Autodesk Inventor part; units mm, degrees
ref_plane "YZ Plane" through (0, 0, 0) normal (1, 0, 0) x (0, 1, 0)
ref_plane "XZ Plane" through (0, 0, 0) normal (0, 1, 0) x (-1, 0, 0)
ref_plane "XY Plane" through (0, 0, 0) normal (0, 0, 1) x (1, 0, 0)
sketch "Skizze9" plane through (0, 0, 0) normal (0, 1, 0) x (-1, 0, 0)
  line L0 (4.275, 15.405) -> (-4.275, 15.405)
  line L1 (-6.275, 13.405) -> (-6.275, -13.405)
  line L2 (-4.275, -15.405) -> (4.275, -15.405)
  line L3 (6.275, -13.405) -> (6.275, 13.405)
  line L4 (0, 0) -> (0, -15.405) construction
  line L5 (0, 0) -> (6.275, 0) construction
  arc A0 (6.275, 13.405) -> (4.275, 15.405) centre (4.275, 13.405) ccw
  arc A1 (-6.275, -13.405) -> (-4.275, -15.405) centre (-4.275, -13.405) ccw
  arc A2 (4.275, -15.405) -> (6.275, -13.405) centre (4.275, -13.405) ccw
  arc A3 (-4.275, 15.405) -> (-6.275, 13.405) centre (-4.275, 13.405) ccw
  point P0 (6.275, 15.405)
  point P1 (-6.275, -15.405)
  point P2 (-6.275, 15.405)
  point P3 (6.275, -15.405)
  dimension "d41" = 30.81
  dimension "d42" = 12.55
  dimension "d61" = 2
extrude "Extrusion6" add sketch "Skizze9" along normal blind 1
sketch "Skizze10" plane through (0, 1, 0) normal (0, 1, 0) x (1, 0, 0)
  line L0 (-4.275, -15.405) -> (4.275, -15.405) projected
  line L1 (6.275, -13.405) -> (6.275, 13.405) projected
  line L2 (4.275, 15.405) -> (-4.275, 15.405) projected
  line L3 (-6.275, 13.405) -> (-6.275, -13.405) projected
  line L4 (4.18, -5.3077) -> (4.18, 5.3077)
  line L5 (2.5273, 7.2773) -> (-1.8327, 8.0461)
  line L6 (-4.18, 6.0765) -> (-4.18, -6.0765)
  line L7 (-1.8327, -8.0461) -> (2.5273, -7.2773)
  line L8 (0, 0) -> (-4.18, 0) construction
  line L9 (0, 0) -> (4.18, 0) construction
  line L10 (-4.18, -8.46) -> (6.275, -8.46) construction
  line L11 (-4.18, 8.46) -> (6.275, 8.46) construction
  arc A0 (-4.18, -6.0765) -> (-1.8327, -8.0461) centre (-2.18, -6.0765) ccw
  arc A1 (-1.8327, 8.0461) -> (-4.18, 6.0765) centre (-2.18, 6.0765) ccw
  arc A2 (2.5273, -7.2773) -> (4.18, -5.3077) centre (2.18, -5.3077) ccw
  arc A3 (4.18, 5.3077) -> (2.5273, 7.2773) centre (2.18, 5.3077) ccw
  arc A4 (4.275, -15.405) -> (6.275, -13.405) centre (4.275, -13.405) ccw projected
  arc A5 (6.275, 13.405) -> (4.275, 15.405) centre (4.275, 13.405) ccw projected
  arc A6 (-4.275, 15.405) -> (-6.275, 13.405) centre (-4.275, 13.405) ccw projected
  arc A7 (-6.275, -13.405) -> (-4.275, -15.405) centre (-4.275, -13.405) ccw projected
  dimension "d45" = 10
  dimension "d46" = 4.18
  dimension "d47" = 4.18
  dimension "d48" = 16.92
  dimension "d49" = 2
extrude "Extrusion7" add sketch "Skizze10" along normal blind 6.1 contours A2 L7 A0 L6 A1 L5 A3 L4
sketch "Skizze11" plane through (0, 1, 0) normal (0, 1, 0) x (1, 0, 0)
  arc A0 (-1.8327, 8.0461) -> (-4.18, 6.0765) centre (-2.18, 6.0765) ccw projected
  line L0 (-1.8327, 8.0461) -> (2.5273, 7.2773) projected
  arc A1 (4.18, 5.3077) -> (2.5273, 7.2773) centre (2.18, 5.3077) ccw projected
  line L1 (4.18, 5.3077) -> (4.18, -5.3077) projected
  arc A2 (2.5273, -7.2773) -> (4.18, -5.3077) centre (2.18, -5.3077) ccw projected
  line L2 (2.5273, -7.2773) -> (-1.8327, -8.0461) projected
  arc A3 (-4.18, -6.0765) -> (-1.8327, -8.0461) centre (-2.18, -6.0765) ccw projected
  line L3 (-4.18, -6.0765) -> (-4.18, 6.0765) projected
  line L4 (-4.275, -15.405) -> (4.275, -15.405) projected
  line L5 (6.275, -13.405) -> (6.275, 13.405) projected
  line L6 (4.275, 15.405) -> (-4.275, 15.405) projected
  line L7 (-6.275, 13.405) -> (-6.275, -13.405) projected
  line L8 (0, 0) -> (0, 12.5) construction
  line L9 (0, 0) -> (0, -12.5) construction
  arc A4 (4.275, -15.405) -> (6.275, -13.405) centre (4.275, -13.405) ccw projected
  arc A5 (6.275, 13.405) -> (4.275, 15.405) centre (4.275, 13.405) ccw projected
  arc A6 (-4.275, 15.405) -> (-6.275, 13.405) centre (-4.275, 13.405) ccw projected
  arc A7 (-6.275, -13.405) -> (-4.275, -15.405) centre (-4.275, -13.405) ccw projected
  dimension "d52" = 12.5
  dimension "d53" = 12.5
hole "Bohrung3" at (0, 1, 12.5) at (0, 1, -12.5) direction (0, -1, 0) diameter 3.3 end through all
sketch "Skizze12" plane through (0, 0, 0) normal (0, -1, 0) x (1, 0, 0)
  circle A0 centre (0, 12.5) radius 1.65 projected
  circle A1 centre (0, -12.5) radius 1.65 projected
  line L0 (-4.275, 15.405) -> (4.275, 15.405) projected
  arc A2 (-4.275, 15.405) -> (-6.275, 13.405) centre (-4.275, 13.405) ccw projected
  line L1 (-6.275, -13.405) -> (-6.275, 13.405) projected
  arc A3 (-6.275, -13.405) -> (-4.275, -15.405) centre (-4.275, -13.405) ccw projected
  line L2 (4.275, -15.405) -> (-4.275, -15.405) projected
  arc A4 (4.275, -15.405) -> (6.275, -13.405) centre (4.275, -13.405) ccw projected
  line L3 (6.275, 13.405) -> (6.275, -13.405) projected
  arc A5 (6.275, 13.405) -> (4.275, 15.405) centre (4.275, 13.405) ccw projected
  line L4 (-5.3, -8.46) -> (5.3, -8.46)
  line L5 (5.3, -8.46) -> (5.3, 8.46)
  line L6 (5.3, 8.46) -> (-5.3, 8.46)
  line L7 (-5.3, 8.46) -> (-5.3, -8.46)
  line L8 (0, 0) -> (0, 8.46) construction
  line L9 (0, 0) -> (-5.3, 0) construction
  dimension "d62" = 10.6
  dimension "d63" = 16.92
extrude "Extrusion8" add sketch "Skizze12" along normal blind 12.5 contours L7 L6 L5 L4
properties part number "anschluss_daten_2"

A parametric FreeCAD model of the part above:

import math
import FreeCAD as App
import Part
import Sketcher
Q = App.Units.Quantity

doc = App.newDocument("Part")
body = doc.addObject("PartDesign::Body", "Body")

# Sketch on XZ plane
sketch1 = body.newObject("Sketcher::SketchObject", "Sketch")
sketch1.AttachmentSupport = (doc.getObject("XZ_Plane"), [""])
sketch1.MapMode = "FlatFace"
sketch1.addGeometry([
    Part.ArcOfCircle(Part.Circle(App.Vector(-4.3, 13.4, 0), App.Vector(0, 0, 1), 2), math.radians(90), math.radians(180)),  # 0
    Part.LineSegment(App.Vector(-4.3, 15.4, 0), App.Vector(4.3, 15.4, 0)),  # 1
    Part.ArcOfCircle(Part.Circle(App.Vector(4.3, 13.4, 0), App.Vector(0, 0, 1), 2), math.radians(0), math.radians(90)),  # 2
    Part.LineSegment(App.Vector(6.3, 13.4, 0), App.Vector(6.3, -13.4, 0)),  # 3
    Part.ArcOfCircle(Part.Circle(App.Vector(4.3, -13.4, 0), App.Vector(0, 0, 1), 2), math.radians(-90), math.radians(0)),  # 4
    Part.LineSegment(App.Vector(4.3, -15.4, 0), App.Vector(-4.3, -15.4, 0)),  # 5
    Part.ArcOfCircle(Part.Circle(App.Vector(-4.3, -13.4, 0), App.Vector(0, 0, 1), 2), math.radians(180), math.radians(270)),  # 6
    Part.LineSegment(App.Vector(-6.3, -13.4, 0), App.Vector(-6.3, 13.4, 0)),  # 7
], False)
sketch1.addConstraint([
    Sketcher.Constraint("Tangent", 0, 1, 1, 1),
    Sketcher.Constraint("Tangent", 1, 2, 2, 2),
    Sketcher.Constraint("Tangent", 2, 1, 3, 1),
    Sketcher.Constraint("Tangent", 3, 2, 4, 2),
    Sketcher.Constraint("Tangent", 4, 1, 5, 1),
    Sketcher.Constraint("Tangent", 5, 2, 6, 2),
    Sketcher.Constraint("Tangent", 6, 1, 7, 1),
    Sketcher.Constraint("Tangent", 7, 2, 0, 2),
    Sketcher.Constraint("Horizontal", 1),
    Sketcher.Constraint("Vertical", 3),
    Sketcher.Constraint("Horizontal", 5),
    Sketcher.Constraint("Vertical", 7),
    Sketcher.Constraint("Equal", 0, 2),
    Sketcher.Constraint("Equal", 2, 4),
    Sketcher.Constraint("Equal", 4, 6),
    Sketcher.Constraint("Symmetric", 0, 3, 4, 3, -1, 1),
    Sketcher.Constraint("Radius", 0, Q("2 mm")),
    Sketcher.Constraint("DistanceX", 6, 1, 3, 2, Q("12.55 mm")),
    Sketcher.Constraint("DistanceY", 3, 2, 3, 1, Q("26.81 mm")),
])
pad1 = body.newObject("PartDesign::Pad", "Pad")
pad1.Profile = sketch1
pad1.Length = 1
pad1.Reversed = True

# Sketch on XZ plane
sketch2 = body.newObject("Sketcher::SketchObject", "Sketch001")
sketch2.AttachmentSupport = (doc.getObject("XZ_Plane"), [""])
sketch2.MapMode = "FlatFace"
sketch2.AttachmentOffset = App.Placement(App.Vector(0, 0, -1), App.Rotation())
sketch2.addGeometry([
    Part.ArcOfCircle(Part.Circle(App.Vector(2.2, 5.3, 0), App.Vector(0, 0, 1), 2), math.radians(0), math.radians(80)),  # 0
    Part.LineSegment(App.Vector(4.2, 5.3, 0), App.Vector(4.2, -5.3, 0)),  # 1
    Part.ArcOfCircle(Part.Circle(App.Vector(2.2, -5.3, 0), App.Vector(0, 0, 1), 2), math.radians(-80), math.radians(0)),  # 2
    Part.LineSegment(App.Vector(2.5, -7.3, 0), App.Vector(-1.8, -8, 0)),  # 3
    Part.ArcOfCircle(Part.Circle(App.Vector(-2.2, -6.1, 0), App.Vector(0, 0, 1), 2), math.radians(180), math.radians(280)),  # 4
    Part.LineSegment(App.Vector(-4.2, -6.1, 0), App.Vector(-4.2, 6.1, 0)),  # 5
    Part.ArcOfCircle(Part.Circle(App.Vector(-2.2, 6.1, 0), App.Vector(0, 0, 1), 2), math.radians(80), math.radians(180)),  # 6
    Part.LineSegment(App.Vector(-1.8, 8, 0), App.Vector(2.5, 7.3, 0)),  # 7
], False)
sketch2.addConstraint([
    Sketcher.Constraint("Tangent", 0, 1, 1, 1),
    Sketcher.Constraint("Tangent", 1, 2, 2, 2),
    Sketcher.Constraint("Tangent", 2, 1, 3, 1),
    Sketcher.Constraint("Tangent", 3, 2, 4, 2),
    Sketcher.Constraint("Tangent", 4, 1, 5, 1),
    Sketcher.Constraint("Tangent", 5, 2, 6, 2),
    Sketcher.Constraint("Tangent", 6, 1, 7, 1),
    Sketcher.Constraint("Tangent", 7, 2, 0, 2),
    Sketcher.Constraint("Vertical", 1),
    Sketcher.Constraint("Vertical", 5),
    Sketcher.Constraint("Equal", 0, 2),
    Sketcher.Constraint("Equal", 2, 4),
    Sketcher.Constraint("Equal", 4, 6),
    Sketcher.Constraint("Symmetric", 3, 2, 6, 1, -1),
    Sketcher.Constraint("Radius", 0, Q("2 mm")),
    Sketcher.Constraint("Angle", 7, Q("-10.0002 deg")),
    Sketcher.Constraint("DistanceX", -1, 1, 0, 1, Q("4.18 mm")),
    Sketcher.Constraint("DistanceX", 4, 1, -1, 1, Q("4.18 mm")),
    Sketcher.Constraint("DistanceY", 5, 1, 5, 2, Q("12.153 mm")),
])
pad2 = body.newObject("PartDesign::Pad", "Pad001")
pad2.Profile = sketch2
pad2.Length = 6.1
pad2.Reversed = True

# Sketch on XZ plane
sketch3 = body.newObject("Sketcher::SketchObject", "Sketch002")
sketch3.AttachmentSupport = (doc.getObject("XZ_Plane"), [""])
sketch3.MapMode = "FlatFace"
sketch3.AttachmentOffset = App.Placement(App.Vector(0, 0, -1), App.Rotation())
sketch3.addGeometry([
    Part.Circle(App.Vector(0, 12.5, 0), App.Vector(0, 0, 1), 1.6),
    Part.Circle(App.Vector(0, -12.5, 0), App.Vector(0, 0, 1), 1.6),
], False)
sketch3.addConstraint([
    Sketcher.Constraint("Equal", 0, 1),
    Sketcher.Constraint("Symmetric", 0, 3, 1, 3, -1, 1),
    Sketcher.Constraint("PointOnObject", 0, 3, -2),
    Sketcher.Constraint("Diameter", 0, Q("3.3 mm")),
    Sketcher.Constraint("DistanceY", 1, 3, 0, 3, Q("25 mm")),
])
doc.recompute()
hole = body.newObject("PartDesign::Hole", "Hole")
hole.Profile = sketch3
hole.ThreadType = "None"
hole.Diameter = 3.3
hole.DepthType = "ThroughAll"
hole.Reversed = True

# Sketch on XZ plane
sketch4 = body.newObject("Sketcher::SketchObject", "Sketch003")
sketch4.AttachmentSupport = (doc.getObject("XZ_Plane"), [""])
sketch4.MapMode = "FlatFace"
sketch4.addGeometry([
    Part.LineSegment(App.Vector(-5, 8, 0), App.Vector(-5, -8, 0)),
    Part.LineSegment(App.Vector(-5, -8, 0), App.Vector(5, -8, 0)),
    Part.LineSegment(App.Vector(5, -8, 0), App.Vector(5, 8, 0)),
    Part.LineSegment(App.Vector(5, 8, 0), App.Vector(-5, 8, 0)),
], False)
sketch4.addConstraint([
    Sketcher.Constraint("Coincident", 0, 2, 1, 1),
    Sketcher.Constraint("Coincident", 1, 2, 2, 1),
    Sketcher.Constraint("Coincident", 2, 2, 3, 1),
    Sketcher.Constraint("Coincident", 3, 2, 0, 1),
    Sketcher.Constraint("Vertical", 0),
    Sketcher.Constraint("Horizontal", 1),
    Sketcher.Constraint("Vertical", 2),
    Sketcher.Constraint("Horizontal", 3),
    Sketcher.Constraint("Symmetric", 0, 2, 2, 2, -1, 1),
    Sketcher.Constraint("DistanceX", 1, 1, 1, 2, Q("10.6 mm")),
    Sketcher.Constraint("DistanceY", 0, 2, 0, 1, Q("16.92 mm")),
])
pad3 = body.newObject("PartDesign::Pad", "Pad002")
pad3.Profile = sketch4
pad3.Length = 12.5

doc.recompute()
